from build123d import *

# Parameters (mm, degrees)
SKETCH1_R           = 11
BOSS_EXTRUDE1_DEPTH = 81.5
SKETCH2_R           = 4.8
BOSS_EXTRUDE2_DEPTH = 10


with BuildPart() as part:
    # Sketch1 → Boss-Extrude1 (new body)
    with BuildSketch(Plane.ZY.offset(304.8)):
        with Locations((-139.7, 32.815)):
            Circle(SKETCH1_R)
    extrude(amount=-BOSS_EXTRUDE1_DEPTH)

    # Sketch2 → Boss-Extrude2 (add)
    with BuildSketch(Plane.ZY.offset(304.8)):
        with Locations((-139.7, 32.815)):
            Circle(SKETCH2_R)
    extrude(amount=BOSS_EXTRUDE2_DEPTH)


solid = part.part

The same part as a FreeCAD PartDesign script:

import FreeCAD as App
import Part
import Sketcher

V = App.Vector

doc = App.newDocument("Part")
body = doc.addObject("PartDesign::Body", "Body")

# Sketch on YZ plane
sketch1 = doc.addObject("Sketcher::SketchObject", "Sketch")
body.addObject(sketch1)
sketch1.AttachmentSupport = (doc.YZ_Plane, [""])
sketch1.MapMode = "FlatFace"
sketch1.AttachmentOffset = App.Placement(V(0, 0, -304.8), App.Rotation())
sketch1.addGeometry(Part.Circle(V(33, -140, 0), V(0, 0, 1), 11), False)
sketch1.addConstraint([
    Sketcher.Constraint("Diameter", 0, 22.0),
    Sketcher.Constraint("DistanceY", 0, 3, -1, 1, 139.7),
    Sketcher.Constraint("DistanceX", -1, 1, 0, 3, 32.815),
])
pad1 = doc.addObject("PartDesign::Pad", "Pad")
body.addObject(pad1)
pad1.Profile = sketch1
pad1.Length = 81.5

# Sketch on YZ plane
sketch2 = doc.addObject("Sketcher::SketchObject", "Sketch001")
body.addObject(sketch2)
sketch2.AttachmentSupport = (doc.YZ_Plane, [""])
sketch2.MapMode = "FlatFace"
sketch2.AttachmentOffset = App.Placement(V(0, 0, -304.8), App.Rotation())
sketch2.addGeometry(Part.Circle(V(32.8, -139.7, 0), V(0, 0, 1), 4.8), False)
sketch2.addConstraint([
    Sketcher.Constraint("Diameter", 0, 9.6),
    Sketcher.Constraint("DistanceY", 0, 3, -1, 1, 139.7),
    Sketcher.Constraint("DistanceX", -1, 1, 0, 3, 32.815),
])
pad2 = doc.addObject("PartDesign::Pad", "Pad001")
body.addObject(pad2)
pad2.Profile = sketch2
pad2.Length = 10
pad2.Reversed = True

doc.recompute()
